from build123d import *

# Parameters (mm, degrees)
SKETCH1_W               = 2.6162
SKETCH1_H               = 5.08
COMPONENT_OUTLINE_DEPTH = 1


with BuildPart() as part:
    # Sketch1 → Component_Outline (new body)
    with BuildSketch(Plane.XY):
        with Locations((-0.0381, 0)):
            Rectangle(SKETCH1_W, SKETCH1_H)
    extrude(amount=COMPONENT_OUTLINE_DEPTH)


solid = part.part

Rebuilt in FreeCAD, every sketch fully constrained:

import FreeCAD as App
import Part
import Sketcher
from FreeCAD import Vector
Q = App.Units.Quantity


def add_polygon(sketch, points):
    """Adds a closed chain of lines whose ends are joined by coincident constraints."""
    first, n = sketch.GeometryCount, len(points)
    for a, b in zip(points, points[1:] + points[:1]):
        sketch.addGeometry(Part.LineSegment(App.Vector(*a, 0), App.Vector(*b, 0)), False)
    for i in range(n):
        sketch.addConstraint(Sketcher.Constraint("Coincident", first + i, 2, first + (i + 1) % n, 1))

doc = App.newDocument("Part")
body = doc.addObject("PartDesign::Body", "Body")

sketch1 = body.newObject("Sketcher::SketchObject", "Sketch")
sketch1.AttachmentSupport = (doc.getObject("XY_Plane"), [""])
sketch1.MapMode = "FlatFace"
add_polygon(sketch1, [(-1.3, 2.5), (-1.3, -2.5), (1.3, -2.5), (1.3, 2.5)])
sketch1.addConstraint(Sketcher.Constraint("Vertical", 0))
sketch1.addConstraint(Sketcher.Constraint("Horizontal", 1))
sketch1.addConstraint(Sketcher.Constraint("Vertical", 2))
sketch1.addConstraint(Sketcher.Constraint("Horizontal", 3))
sketch1.addConstraint(Sketcher.Constraint("DistanceY", 0, 2, 0, 1, Q("0.2 in")))
sketch1.addConstraint(Sketcher.Constraint("DistanceY", 0, 2, -1, 1, Q("0.1 in")))
sketch1.addConstraint(Sketcher.Constraint("DistanceX", 1, 1, 1, 2, Q("0.103 in")))
sketch1.addConstraint(Sketcher.Constraint("DistanceX", -1, 1, 1, 2, Q("0.05 in")))
pad1 = body.newObject("PartDesign::Pad", "Pad")
pad1.Profile = sketch1
pad1.Length = 1

doc.recompute()
